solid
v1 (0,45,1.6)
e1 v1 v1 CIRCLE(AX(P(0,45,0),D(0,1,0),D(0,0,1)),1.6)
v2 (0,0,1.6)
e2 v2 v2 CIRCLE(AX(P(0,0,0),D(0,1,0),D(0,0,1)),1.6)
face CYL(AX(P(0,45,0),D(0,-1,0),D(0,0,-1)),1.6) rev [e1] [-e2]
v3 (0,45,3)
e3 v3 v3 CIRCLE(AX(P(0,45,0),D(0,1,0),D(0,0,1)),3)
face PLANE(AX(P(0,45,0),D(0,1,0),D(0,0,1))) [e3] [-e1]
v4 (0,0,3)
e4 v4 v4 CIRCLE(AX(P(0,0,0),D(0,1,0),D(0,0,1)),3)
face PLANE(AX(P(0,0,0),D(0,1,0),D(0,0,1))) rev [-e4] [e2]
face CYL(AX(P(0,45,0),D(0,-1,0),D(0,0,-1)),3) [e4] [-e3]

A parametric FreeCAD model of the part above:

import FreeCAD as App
import Part
import Sketcher

V = App.Vector

doc = App.newDocument("Part")
body = doc.addObject("PartDesign::Body", "Body")

sketch1 = doc.addObject("Sketcher::SketchObject", "Sketch")
body.addObject(sketch1)
sketch1.AttachmentSupport = (doc.XZ_Plane, [""])
sketch1.MapMode = "FlatFace"
sketch1.addGeometry([
    Part.Circle(V(0, 0, 0), V(0, 0, 1), 3),
    Part.Circle(V(0, 0, 0), V(0, 0, 1), 1.6),
], False)
sketch1.addConstraint([
    Sketcher.Constraint("Coincident", 0, 3, -1, 1),
    Sketcher.Constraint("Coincident", 1, 3, -1, 1),
    Sketcher.Constraint("Diameter", 0, 6.0),
    Sketcher.Constraint("Diameter", 1, 3.2),
])
pad1 = doc.addObject("PartDesign::Pad", "Pad")
body.addObject(pad1)
pad1.Profile = sketch1
pad1.Length = 45
pad1.Reversed = True

doc.recompute()
